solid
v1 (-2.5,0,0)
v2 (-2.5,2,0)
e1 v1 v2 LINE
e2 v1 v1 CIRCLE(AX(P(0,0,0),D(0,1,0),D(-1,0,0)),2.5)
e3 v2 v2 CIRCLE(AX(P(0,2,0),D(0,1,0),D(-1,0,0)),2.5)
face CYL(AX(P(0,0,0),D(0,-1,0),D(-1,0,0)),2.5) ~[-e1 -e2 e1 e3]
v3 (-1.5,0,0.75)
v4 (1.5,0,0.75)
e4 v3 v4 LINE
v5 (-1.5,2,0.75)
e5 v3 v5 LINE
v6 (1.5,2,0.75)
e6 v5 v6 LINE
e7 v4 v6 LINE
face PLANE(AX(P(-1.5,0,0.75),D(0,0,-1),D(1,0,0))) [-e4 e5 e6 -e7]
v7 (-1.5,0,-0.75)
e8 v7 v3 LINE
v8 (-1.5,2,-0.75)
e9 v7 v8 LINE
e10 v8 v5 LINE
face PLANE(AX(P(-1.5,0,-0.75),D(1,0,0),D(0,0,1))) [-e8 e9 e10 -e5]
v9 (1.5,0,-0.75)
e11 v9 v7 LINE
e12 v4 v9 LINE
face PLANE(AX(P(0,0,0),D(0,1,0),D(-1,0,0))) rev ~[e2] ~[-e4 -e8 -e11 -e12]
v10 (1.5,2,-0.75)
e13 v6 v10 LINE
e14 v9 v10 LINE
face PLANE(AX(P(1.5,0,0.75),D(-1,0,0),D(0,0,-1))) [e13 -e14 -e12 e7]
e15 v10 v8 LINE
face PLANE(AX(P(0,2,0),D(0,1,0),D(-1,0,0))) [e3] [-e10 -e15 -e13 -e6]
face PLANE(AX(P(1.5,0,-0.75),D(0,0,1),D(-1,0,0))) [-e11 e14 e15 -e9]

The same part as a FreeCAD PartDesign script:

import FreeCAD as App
import Part
import Sketcher

V = App.Vector
Q = App.Units.Quantity


def add_polygon(sketch, points):
    """Adds a closed chain of lines whose ends are joined by coincident constraints."""
    first, n = sketch.GeometryCount, len(points)
    for a, b in zip(points, points[1:] + points[:1]):
        sketch.addGeometry(Part.LineSegment(App.Vector(*a, 0), App.Vector(*b, 0)), False)
    for i in range(n):
        sketch.addConstraint(Sketcher.Constraint("Coincident", first + i, 2, first + (i + 1) % n, 1))

doc = App.newDocument("Part")
body = doc.addObject("PartDesign::Body", "Body")

# Sketch on XZ plane
sketch1 = body.newObject("Sketcher::SketchObject", "Sketch")
sketch1.AttachmentSupport = (doc.getObject("XZ_Plane"), [""])
sketch1.MapMode = "FlatFace"
sketch1.addGeometry(Part.Circle(V(0, 0, 0), V(0, 0, 1), 2.5), False)  # 0
add_polygon(sketch1, [(1.5, 0.8), (-1.5, 0.8), (-1.5, -0.8), (1.5, -0.8)])  # lines 1-4
sketch1.addConstraint([
    Sketcher.Constraint("Horizontal", 1),
    Sketcher.Constraint("Vertical", 2),
    Sketcher.Constraint("Horizontal", 3),
    Sketcher.Constraint("Vertical", 4),
    Sketcher.Constraint("Coincident", 0, 3, -1, 1),
    Sketcher.Constraint("Symmetric", 1, 2, 3, 2, -1, 1),
    Sketcher.Constraint("Diameter", 0, Q("5 mm")),
    Sketcher.Constraint("DistanceX", 1, 2, 1, 1, Q("3 mm")),
    Sketcher.Constraint("DistanceY", 2, 2, 2, 1, Q("1.5 mm")),
])
pad1 = body.newObject("PartDesign::Pad", "Pad")
pad1.Profile = sketch1
pad1.Length = 2
pad1.Reversed = True

doc.recompute()
